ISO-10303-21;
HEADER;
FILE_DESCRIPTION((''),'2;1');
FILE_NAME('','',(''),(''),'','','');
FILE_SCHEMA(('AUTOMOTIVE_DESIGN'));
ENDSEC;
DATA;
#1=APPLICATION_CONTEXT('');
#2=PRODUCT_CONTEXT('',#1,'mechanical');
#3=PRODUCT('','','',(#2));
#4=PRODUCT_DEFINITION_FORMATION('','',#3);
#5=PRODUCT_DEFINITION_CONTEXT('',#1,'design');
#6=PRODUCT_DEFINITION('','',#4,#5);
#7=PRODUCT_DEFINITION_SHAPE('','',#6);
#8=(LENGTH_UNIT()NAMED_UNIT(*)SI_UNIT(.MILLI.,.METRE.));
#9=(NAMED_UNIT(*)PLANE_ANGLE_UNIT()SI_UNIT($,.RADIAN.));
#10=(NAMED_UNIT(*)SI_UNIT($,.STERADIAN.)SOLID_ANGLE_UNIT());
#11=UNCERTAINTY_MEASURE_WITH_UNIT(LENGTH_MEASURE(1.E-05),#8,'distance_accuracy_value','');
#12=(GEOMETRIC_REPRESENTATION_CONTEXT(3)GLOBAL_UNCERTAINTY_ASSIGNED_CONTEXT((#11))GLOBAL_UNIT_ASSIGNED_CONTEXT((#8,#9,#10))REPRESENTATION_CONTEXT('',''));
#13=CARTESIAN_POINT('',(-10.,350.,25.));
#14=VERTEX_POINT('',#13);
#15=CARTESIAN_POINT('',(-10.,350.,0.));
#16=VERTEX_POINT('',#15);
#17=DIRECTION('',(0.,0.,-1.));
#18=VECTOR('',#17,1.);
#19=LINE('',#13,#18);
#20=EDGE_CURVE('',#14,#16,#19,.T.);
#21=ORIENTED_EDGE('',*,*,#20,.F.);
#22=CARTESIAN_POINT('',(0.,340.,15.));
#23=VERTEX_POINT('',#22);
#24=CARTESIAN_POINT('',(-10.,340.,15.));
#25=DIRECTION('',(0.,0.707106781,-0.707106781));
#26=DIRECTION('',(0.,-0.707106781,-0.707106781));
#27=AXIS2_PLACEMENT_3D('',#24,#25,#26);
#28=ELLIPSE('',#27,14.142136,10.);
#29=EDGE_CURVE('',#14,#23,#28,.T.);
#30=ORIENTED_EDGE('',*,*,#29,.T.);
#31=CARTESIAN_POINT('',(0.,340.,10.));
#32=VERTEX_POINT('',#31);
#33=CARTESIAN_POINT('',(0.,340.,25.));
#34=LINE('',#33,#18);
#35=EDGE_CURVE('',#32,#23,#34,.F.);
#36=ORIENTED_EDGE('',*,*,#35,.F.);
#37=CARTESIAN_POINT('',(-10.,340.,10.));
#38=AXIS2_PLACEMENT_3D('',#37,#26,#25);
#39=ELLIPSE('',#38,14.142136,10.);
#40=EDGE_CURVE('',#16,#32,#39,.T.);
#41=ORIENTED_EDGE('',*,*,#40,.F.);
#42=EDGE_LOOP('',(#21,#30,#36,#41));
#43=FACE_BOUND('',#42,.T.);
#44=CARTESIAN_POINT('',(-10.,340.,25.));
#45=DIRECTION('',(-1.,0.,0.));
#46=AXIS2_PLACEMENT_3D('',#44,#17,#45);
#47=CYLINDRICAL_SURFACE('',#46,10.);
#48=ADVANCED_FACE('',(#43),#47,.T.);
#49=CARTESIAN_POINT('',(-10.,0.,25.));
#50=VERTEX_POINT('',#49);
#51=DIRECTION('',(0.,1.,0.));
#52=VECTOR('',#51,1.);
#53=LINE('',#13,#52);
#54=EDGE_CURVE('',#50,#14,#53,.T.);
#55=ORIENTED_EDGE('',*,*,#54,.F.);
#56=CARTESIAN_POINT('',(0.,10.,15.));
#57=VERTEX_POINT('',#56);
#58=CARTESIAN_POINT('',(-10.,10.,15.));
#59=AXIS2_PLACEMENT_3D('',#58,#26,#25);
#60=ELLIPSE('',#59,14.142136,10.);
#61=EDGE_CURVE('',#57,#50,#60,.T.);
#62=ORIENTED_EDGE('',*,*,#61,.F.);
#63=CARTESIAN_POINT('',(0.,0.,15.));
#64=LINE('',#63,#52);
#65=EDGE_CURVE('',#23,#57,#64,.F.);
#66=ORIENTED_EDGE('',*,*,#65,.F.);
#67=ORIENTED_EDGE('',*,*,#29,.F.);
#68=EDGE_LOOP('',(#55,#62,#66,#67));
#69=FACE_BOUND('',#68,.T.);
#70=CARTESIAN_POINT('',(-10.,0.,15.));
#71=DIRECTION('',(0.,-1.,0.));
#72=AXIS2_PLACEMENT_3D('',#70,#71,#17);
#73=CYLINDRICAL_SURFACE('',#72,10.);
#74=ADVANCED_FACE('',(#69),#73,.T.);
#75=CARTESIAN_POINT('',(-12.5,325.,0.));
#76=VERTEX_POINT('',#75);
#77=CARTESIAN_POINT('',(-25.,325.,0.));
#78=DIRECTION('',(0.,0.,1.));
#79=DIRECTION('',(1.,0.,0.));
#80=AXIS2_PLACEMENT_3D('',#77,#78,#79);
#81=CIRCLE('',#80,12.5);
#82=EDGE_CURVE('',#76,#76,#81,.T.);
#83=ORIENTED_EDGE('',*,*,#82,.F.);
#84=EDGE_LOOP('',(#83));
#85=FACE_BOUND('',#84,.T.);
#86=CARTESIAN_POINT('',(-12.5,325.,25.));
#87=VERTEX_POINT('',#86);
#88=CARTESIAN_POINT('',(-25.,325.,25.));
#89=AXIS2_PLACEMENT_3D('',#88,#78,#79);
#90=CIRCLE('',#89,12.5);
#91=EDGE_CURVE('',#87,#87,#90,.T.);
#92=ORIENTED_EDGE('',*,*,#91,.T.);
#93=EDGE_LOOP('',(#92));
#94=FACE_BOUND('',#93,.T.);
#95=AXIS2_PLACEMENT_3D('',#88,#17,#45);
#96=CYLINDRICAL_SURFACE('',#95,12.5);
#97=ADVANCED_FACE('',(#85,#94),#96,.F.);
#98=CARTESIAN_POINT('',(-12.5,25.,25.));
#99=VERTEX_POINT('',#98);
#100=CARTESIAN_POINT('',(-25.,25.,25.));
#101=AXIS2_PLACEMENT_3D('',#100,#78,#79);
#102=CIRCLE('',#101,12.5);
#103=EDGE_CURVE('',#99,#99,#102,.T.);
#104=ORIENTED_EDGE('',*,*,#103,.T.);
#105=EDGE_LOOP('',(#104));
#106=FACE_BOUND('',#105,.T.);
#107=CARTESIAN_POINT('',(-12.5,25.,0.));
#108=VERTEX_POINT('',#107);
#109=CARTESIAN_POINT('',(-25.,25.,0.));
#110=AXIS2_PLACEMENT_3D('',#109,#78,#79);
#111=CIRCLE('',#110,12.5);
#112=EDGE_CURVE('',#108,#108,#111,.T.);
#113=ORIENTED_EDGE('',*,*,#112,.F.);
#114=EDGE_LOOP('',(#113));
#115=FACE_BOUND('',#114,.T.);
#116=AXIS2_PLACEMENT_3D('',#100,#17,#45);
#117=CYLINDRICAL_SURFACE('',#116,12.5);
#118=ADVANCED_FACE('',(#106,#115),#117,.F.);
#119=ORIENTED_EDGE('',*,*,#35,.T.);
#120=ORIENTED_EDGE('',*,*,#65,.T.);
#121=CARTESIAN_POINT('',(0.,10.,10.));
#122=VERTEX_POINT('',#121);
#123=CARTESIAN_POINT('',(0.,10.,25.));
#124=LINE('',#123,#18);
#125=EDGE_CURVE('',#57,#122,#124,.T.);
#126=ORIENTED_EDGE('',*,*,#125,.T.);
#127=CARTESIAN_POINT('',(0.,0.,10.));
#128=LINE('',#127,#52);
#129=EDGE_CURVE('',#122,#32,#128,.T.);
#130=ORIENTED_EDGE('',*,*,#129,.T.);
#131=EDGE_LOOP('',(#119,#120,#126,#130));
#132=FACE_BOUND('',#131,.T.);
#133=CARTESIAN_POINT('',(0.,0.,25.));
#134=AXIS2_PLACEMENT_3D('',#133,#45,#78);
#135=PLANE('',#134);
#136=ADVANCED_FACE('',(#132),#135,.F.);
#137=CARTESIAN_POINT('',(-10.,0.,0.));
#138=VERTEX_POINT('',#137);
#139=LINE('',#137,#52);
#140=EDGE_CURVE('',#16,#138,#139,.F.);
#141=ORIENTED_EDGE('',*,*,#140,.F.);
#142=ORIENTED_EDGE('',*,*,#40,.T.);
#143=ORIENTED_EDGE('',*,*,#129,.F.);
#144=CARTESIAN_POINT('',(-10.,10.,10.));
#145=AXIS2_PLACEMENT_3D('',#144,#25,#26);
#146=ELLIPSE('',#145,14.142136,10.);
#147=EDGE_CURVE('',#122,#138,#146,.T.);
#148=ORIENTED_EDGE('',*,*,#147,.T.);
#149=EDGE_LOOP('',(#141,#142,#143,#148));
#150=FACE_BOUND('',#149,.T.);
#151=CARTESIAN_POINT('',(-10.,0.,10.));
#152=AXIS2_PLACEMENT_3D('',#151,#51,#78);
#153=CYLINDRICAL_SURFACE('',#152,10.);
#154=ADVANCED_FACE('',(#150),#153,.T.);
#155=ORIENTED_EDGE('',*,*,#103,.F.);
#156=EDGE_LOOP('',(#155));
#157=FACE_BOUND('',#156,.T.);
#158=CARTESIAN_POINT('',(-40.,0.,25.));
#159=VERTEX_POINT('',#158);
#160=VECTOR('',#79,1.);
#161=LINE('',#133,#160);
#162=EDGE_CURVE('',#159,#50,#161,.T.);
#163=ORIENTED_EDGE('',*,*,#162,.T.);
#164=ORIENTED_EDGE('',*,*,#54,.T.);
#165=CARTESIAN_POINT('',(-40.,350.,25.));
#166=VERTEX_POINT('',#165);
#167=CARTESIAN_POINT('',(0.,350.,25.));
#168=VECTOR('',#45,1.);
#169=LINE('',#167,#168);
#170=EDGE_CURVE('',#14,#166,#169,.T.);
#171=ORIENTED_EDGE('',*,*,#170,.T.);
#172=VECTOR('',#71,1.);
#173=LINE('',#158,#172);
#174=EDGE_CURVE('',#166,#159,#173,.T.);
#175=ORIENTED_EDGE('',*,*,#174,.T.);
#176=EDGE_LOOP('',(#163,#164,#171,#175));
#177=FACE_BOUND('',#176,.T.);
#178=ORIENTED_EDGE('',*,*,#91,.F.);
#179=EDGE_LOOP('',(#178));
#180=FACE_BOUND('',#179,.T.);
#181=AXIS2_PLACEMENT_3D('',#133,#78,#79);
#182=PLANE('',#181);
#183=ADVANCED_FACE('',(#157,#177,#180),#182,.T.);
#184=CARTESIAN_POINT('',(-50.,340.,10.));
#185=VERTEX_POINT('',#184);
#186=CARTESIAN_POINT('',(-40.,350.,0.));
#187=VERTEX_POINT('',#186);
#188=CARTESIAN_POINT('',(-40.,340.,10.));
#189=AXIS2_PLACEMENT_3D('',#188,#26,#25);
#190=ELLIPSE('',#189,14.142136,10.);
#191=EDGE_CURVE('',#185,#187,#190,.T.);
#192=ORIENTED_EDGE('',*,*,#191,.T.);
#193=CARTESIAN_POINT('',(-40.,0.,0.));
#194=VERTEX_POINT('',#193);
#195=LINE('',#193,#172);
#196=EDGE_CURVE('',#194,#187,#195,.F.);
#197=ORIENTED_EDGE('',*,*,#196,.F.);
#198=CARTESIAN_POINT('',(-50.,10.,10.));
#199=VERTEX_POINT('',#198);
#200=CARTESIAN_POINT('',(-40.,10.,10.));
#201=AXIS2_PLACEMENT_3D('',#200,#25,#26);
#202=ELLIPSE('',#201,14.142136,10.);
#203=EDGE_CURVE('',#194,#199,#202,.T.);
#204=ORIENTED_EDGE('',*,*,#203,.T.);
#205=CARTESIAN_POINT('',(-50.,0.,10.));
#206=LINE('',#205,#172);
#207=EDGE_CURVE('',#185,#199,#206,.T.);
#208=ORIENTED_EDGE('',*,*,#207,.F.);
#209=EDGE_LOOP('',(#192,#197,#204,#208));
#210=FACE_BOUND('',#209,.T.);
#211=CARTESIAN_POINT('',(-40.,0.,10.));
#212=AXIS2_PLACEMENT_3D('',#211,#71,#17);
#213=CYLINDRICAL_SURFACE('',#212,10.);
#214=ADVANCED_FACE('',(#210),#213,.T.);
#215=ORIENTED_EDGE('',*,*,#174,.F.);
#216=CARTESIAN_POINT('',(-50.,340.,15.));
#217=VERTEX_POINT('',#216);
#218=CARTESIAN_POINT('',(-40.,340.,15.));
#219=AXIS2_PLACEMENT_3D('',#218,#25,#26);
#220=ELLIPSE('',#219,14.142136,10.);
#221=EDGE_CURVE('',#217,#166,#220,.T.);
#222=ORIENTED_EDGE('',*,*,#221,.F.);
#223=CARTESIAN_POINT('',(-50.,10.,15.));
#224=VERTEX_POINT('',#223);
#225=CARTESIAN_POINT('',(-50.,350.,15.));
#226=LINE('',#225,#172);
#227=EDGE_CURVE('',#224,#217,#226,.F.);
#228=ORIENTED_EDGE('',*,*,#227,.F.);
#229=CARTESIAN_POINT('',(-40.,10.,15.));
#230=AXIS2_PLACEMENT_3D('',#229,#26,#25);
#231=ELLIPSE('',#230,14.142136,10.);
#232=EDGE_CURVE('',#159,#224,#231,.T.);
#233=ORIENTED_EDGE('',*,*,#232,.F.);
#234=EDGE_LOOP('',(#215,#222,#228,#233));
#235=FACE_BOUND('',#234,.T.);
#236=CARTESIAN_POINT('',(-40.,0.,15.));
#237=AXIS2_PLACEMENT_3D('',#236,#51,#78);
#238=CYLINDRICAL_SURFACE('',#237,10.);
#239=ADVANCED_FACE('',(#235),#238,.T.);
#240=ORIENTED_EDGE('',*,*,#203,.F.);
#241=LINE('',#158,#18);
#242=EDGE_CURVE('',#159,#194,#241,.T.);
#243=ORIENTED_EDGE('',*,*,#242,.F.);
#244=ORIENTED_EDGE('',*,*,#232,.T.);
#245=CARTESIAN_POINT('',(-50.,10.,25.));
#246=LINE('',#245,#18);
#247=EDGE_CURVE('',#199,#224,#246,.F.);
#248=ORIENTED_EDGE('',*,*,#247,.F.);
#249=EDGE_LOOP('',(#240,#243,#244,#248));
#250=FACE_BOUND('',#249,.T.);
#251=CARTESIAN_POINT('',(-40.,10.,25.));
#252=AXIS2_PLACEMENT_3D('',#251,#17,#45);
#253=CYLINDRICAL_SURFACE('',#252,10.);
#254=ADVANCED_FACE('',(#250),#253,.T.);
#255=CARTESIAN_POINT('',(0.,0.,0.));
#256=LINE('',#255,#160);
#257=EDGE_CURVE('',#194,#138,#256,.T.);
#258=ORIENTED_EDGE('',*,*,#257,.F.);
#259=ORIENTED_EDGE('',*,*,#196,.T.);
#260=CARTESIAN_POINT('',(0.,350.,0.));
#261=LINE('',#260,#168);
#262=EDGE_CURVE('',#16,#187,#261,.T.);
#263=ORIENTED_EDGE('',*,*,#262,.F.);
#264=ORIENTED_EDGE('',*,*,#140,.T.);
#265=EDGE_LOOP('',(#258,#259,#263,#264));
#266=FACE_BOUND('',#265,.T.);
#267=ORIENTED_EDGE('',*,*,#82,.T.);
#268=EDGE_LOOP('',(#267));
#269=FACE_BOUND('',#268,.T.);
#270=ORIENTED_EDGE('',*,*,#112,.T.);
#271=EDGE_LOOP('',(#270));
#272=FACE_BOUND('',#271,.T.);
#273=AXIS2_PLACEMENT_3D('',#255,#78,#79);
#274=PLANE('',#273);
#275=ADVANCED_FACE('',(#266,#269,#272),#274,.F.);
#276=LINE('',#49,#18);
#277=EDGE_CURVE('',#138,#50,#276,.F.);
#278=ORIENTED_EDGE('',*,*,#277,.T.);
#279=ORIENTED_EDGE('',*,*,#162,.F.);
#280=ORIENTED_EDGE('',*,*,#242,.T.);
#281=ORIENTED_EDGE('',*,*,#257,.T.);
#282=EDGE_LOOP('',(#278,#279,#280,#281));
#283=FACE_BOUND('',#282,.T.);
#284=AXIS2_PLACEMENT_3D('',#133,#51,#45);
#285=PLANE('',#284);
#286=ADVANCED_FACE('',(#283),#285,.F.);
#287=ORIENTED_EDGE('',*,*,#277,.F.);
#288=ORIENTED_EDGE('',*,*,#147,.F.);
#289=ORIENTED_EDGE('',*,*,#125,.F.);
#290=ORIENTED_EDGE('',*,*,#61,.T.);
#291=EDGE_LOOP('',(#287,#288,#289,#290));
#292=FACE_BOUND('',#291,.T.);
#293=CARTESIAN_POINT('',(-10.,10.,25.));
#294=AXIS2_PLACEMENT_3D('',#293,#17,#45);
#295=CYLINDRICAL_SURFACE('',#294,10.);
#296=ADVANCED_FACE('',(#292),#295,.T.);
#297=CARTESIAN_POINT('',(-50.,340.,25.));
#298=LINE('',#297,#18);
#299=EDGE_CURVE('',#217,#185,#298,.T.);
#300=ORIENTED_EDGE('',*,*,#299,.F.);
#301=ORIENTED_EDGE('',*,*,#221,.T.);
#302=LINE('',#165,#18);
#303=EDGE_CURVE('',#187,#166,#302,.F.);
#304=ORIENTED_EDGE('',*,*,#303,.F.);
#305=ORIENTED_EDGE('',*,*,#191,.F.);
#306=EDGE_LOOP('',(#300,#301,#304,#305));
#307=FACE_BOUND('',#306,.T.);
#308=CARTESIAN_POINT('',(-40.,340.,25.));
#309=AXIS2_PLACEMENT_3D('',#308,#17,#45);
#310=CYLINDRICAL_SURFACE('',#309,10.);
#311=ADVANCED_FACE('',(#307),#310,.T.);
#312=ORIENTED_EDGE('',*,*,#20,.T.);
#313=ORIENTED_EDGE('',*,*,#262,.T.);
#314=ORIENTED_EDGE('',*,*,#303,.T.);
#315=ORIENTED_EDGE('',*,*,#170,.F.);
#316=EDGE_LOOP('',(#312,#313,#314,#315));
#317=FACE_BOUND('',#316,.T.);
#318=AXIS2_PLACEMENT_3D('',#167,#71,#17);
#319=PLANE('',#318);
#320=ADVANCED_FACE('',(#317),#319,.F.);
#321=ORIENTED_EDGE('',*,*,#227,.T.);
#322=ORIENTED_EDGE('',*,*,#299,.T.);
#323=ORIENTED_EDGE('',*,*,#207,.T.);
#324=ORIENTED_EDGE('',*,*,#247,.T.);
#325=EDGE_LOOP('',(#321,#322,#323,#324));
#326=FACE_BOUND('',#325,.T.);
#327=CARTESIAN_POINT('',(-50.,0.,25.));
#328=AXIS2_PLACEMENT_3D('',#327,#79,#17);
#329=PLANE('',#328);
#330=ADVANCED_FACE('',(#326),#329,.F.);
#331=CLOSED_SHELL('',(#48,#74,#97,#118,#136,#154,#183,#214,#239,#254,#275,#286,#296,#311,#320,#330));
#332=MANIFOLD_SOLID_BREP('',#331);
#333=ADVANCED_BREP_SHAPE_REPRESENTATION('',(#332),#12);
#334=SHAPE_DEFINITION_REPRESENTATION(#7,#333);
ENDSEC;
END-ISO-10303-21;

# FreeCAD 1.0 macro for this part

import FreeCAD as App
import Part
import Sketcher
from FreeCAD import Vector


def edges_at(feature, points):
    """Names of the edges that pass closest to the given points."""
    edges = feature.Shape.Edges
    near = lambda p: min(range(len(edges)), key=lambda i: edges[i].distToShape(Part.Vertex(*p))[0])
    return sorted({f"Edge{near(p) + 1}" for p in points})

doc = App.newDocument("Part")
body = doc.addObject("PartDesign::Body", "Body")

sketch1 = doc.addObject("Sketcher::SketchObject", "Sketch")
body.addObject(sketch1)
sketch1.AttachmentSupport = (doc.XY_Plane, [""])
sketch1.MapMode = "FlatFace"
sketch1.addGeometry(Part.LineSegment(Vector(-50, 350, 0), Vector(-50, 0, 0)), False)
sketch1.addGeometry(Part.LineSegment(Vector(-50, 0, 0), Vector(0, 0, 0)), False)
sketch1.addGeometry(Part.LineSegment(Vector(0, 0, 0), Vector(0, 350, 0)), False)
sketch1.addGeometry(Part.LineSegment(Vector(0, 350, 0), Vector(-50, 350, 0)), False)
sketch1.addGeometry(Part.Circle(Vector(-25, 25, 0), Vector(0, 0, 1), 12), False)
sketch1.addGeometry(Part.Circle(Vector(-25, 325, 0), Vector(0, 0, 1), 12), False)
sketch1.addConstraint(Sketcher.Constraint("Coincident", 0, 2, 1, 1))
sketch1.addConstraint(Sketcher.Constraint("Coincident", 1, 2, 2, 1))
sketch1.addConstraint(Sketcher.Constraint("Coincident", 2, 2, 3, 1))
sketch1.addConstraint(Sketcher.Constraint("Coincident", 3, 2, 0, 1))
sketch1.addConstraint(Sketcher.Constraint("Vertical", 0))
sketch1.addConstraint(Sketcher.Constraint("Horizontal", 1))
sketch1.addConstraint(Sketcher.Constraint("Vertical", 2))
sketch1.addConstraint(Sketcher.Constraint("Horizontal", 3))
sketch1.addConstraint(Sketcher.Constraint("Coincident", 1, 2, -1, 1))
sketch1.addConstraint(Sketcher.Constraint("Equal", 4, 5))
sketch1.addConstraint(Sketcher.Constraint("Vertical", 4, 3, 5, 3))
sketch1.addConstraint(Sketcher.Constraint("Diameter", 4, 25.0))
sketch1.addConstraint(Sketcher.Constraint("DistanceX", 1, 1, 1, 2, 50.0))
sketch1.addConstraint(Sketcher.Constraint("DistanceY", 0, 2, 0, 1, 350.0))
sketch1.addConstraint(Sketcher.Constraint("DistanceX", 4, 3, -1, 1, 25.0))
sketch1.addConstraint(Sketcher.Constraint("DistanceY", -1, 1, 4, 3, 25.0))
sketch1.addConstraint(Sketcher.Constraint("DistanceY", -1, 1, 5, 3, 325.0))
pad1 = doc.addObject("PartDesign::Pad", "Pad")
body.addObject(pad1)
pad1.Profile = sketch1
pad1.Length = 25
doc.recompute()

fillet = doc.addObject("PartDesign::Fillet", "Fillet")
body.addObject(fillet)
fillet.Base = (pad1, edges_at(pad1, [
    (-50, 175, 25),
    (0, 175, 25),
    (-50, 175, 0),
    (0, 175, 0),
    (0, 0, 12.5),
    (-50, 0, 12.5),
    (-50, 350, 12.5),
    (0, 350, 12.5),
]))
fillet.Radius = 10

doc.recompute()
